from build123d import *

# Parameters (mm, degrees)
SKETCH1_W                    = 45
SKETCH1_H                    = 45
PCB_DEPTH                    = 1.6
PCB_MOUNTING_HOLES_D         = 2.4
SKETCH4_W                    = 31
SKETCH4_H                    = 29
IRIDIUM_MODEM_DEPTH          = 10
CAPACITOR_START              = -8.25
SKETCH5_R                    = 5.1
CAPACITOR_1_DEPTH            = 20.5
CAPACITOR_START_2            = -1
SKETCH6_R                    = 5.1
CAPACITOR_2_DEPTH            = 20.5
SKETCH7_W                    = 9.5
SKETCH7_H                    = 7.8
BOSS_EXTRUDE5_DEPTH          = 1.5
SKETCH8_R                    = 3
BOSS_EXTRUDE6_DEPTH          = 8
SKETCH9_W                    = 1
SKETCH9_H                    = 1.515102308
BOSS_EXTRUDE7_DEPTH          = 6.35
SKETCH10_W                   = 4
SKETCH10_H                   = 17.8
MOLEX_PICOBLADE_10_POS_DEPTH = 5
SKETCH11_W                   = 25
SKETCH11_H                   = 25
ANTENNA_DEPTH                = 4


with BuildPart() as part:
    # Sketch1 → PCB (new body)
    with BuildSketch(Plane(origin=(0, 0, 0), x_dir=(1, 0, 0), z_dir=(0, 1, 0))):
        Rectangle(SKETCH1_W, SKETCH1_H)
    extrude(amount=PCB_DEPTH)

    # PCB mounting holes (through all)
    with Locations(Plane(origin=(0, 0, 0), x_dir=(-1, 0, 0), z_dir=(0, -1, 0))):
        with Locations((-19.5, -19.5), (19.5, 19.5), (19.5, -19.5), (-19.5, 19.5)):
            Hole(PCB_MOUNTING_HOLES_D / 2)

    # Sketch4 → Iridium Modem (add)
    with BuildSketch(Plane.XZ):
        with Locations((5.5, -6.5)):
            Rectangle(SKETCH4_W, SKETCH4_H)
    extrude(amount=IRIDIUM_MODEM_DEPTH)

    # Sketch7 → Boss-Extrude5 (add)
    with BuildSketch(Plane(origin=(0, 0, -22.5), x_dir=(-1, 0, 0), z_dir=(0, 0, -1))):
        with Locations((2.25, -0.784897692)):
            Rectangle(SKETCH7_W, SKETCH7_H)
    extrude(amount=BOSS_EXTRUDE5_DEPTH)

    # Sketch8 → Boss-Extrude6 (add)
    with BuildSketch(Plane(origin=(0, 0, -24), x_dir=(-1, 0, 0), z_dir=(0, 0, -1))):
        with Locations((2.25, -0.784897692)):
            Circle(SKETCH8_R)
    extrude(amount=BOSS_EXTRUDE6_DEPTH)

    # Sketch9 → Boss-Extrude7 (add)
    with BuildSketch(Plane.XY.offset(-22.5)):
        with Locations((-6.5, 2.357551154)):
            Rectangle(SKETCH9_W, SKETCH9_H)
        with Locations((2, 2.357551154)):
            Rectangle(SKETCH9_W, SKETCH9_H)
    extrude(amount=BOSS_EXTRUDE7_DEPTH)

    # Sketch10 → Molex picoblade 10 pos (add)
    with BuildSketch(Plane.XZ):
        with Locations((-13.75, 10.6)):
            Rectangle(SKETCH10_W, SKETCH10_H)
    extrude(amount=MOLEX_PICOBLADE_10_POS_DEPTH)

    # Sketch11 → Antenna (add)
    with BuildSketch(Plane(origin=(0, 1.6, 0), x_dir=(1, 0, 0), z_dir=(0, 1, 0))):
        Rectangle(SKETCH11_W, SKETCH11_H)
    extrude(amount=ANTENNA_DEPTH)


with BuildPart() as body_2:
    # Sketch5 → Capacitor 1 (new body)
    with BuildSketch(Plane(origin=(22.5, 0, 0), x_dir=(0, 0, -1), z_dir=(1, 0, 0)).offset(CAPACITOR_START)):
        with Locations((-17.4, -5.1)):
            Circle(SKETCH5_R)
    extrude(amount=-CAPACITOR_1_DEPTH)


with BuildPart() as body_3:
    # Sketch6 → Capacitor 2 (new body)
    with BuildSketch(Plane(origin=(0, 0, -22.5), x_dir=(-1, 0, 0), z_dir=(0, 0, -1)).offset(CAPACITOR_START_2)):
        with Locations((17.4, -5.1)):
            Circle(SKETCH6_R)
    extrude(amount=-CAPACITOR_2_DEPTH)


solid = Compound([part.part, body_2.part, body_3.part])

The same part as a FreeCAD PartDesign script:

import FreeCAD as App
import Part
import Sketcher


def add_polygon(sketch, points):
    """Adds a closed chain of lines whose ends are joined by coincident constraints."""
    first, n = sketch.GeometryCount, len(points)
    for a, b in zip(points, points[1:] + points[:1]):
        sketch.addGeometry(Part.LineSegment(App.Vector(*a, 0), App.Vector(*b, 0)), False)
    for i in range(n):
        sketch.addConstraint(Sketcher.Constraint("Coincident", first + i, 2, first + (i + 1) % n, 1))

doc = App.newDocument("Part")
body = doc.addObject("PartDesign::Body", "Body")

sketch1 = body.newObject("Sketcher::SketchObject", "Sketch")
sketch1.AttachmentSupport = (doc.getObject("XZ_Plane"), [""])
sketch1.MapMode = "FlatFace"
add_polygon(sketch1, [(-22, -22), (-22, 22), (22, 22), (22, -22)])
sketch1.addConstraint(Sketcher.Constraint("Vertical", 0))
sketch1.addConstraint(Sketcher.Constraint("Horizontal", 1))
sketch1.addConstraint(Sketcher.Constraint("Vertical", 2))
sketch1.addConstraint(Sketcher.Constraint("Horizontal", 3))
sketch1.addConstraint(Sketcher.Constraint("Symmetric", 0, 2, 2, 2, -1, 1))
sketch1.addConstraint(Sketcher.Constraint("Equal", 3, 0))
sketch1.addConstraint(Sketcher.Constraint("DistanceX", 1, 1, 1, 2, 45.0))
pad1 = body.newObject("PartDesign::Pad", "Pad")
pad1.Profile = sketch1
pad1.Length = 1.6
pad1.Reversed = True

sketch2 = body.newObject("Sketcher::SketchObject", "Sketch001")
sketch2.AttachmentSupport = (doc.getObject("XZ_Plane"), [""])
sketch2.MapMode = "FlatFace"
sketch2.addGeometry(Part.Circle(App.Vector(19.5, 19.5, 0), App.Vector(0, 0, 1), 1.2), False)
sketch2.addGeometry(Part.Circle(App.Vector(-19.5, -19.5, 0), App.Vector(0, 0, 1), 1.2), False)
sketch2.addGeometry(Part.Circle(App.Vector(-19.5, 19.5, 0), App.Vector(0, 0, 1), 1.2), False)
sketch2.addGeometry(Part.Circle(App.Vector(19.5, -19.5, 0), App.Vector(0, 0, 1), 1.2), False)
sketch2.addConstraint(Sketcher.Constraint("Equal", 0, 1))
sketch2.addConstraint(Sketcher.Constraint("Equal", 1, 2))
sketch2.addConstraint(Sketcher.Constraint("Equal", 2, 3))
sketch2.addConstraint(Sketcher.Constraint("Symmetric", 0, 3, 1, 3, -1, 1))
sketch2.addConstraint(Sketcher.Constraint("Symmetric", 2, 3, 3, 3, -1, 1))
sketch2.addConstraint(Sketcher.Constraint("Symmetric", 0, 3, 2, 3, -2))
sketch2.addConstraint(Sketcher.Constraint("Diameter", 0, 2.4))
sketch2.addConstraint(Sketcher.Constraint("DistanceX", 1, 3, 0, 3, 39.0))
sketch2.addConstraint(Sketcher.Constraint("DistanceY", 1, 3, 0, 3, 39.0))
doc.recompute()
hole = body.newObject("PartDesign::Hole", "Hole")
hole.Profile = sketch2
hole.ThreadType = "None"
hole.Diameter = 2.4
hole.DepthType = "ThroughAll"

sketch3 = body.newObject("Sketcher::SketchObject", "Sketch002")
sketch3.AttachmentSupport = (doc.getObject("XZ_Plane"), [""])
sketch3.MapMode = "FlatFace"
add_polygon(sketch3, [(-10, 8), (-10, -21), (21, -21), (21, 8)])
sketch3.addConstraint(Sketcher.Constraint("Vertical", 0))
sketch3.addConstraint(Sketcher.Constraint("Horizontal", 1))
sketch3.addConstraint(Sketcher.Constraint("Vertical", 2))
sketch3.addConstraint(Sketcher.Constraint("Horizontal", 3))
sketch3.addConstraint(Sketcher.Constraint("DistanceX", 1, 1, 1, 2, 31.0))
sketch3.addConstraint(Sketcher.Constraint("DistanceY", 0, 2, 0, 1, 29.0))
sketch3.addConstraint(Sketcher.Constraint("DistanceX", 0, 2, -1, 1, 10.0))
sketch3.addConstraint(Sketcher.Constraint("DistanceY", 0, 2, -1, 1, 21.0))
pad2 = body.newObject("PartDesign::Pad", "Pad001")
pad2.Profile = sketch3
pad2.Length = 10

sketch4 = body.newObject("Sketcher::SketchObject", "Sketch003")
sketch4.AttachmentSupport = (doc.getObject("XY_Plane"), [""])
sketch4.MapMode = "FlatFace"
sketch4.AttachmentOffset = App.Placement(App.Vector(0, 0, -22.5), App.Rotation())
add_polygon(sketch4, [(2, 3), (2, -5), (-7, -5), (-7, 3)])
sketch4.addConstraint(Sketcher.Constraint("Vertical", 0))
sketch4.addConstraint(Sketcher.Constraint("Horizontal", 1))
sketch4.addConstraint(Sketcher.Constraint("Vertical", 2))
sketch4.addConstraint(Sketcher.Constraint("Horizontal", 3))
sketch4.addConstraint(Sketcher.Constraint("DistanceX", 1, 2, 1, 1, 9.5))
sketch4.addConstraint(Sketcher.Constraint("DistanceY", 0, 2, 0, 1, 7.8))
sketch4.addConstraint(Sketcher.Constraint("DistanceX", 1, 2, -1, 1, 7.0))
sketch4.addConstraint(Sketcher.Constraint("DistanceY", 0, 2, -1, 1, 4.684898))
pad3 = body.newObject("PartDesign::Pad", "Pad002")
pad3.Profile = sketch4
pad3.Length = 1.5
pad3.Reversed = True

sketch5 = body.newObject("Sketcher::SketchObject", "Sketch004")
sketch5.AttachmentSupport = (doc.getObject("XY_Plane"), [""])
sketch5.MapMode = "FlatFace"
sketch5.AttachmentOffset = App.Placement(App.Vector(0, 0, -24), App.Rotation())
sketch5.addGeometry(Part.Circle(App.Vector(-2.2, -0.8, 0), App.Vector(0, 0, 1), 3), False)
sketch5.addConstraint(Sketcher.Constraint("Diameter", 0, 6.0))
sketch5.addConstraint(Sketcher.Constraint("DistanceX", 0, 3, -1, 1, 2.25))
sketch5.addConstraint(Sketcher.Constraint("DistanceY", 0, 3, -1, 1, 0.784898))
pad4 = body.newObject("PartDesign::Pad", "Pad003")
pad4.Profile = sketch5
pad4.Length = 8
pad4.Reversed = True

sketch6 = body.newObject("Sketcher::SketchObject", "Sketch005")
sketch6.AttachmentSupport = (doc.getObject("XY_Plane"), [""])
sketch6.MapMode = "FlatFace"
sketch6.AttachmentOffset = App.Placement(App.Vector(0, 0, -22.5), App.Rotation())
add_polygon(sketch6, [(-7, 3.1), (-7, 1.6), (-6, 1.6), (-6, 3.1)])
add_polygon(sketch6, [(1.5, 3.1), (1.5, 1.6), (2.5, 1.6), (2.5, 3.1)])
sketch6.addConstraint(Sketcher.Constraint("Vertical", 0))
sketch6.addConstraint(Sketcher.Constraint("Horizontal", 1))
sketch6.addConstraint(Sketcher.Constraint("Vertical", 2))
sketch6.addConstraint(Sketcher.Constraint("Horizontal", 3))
sketch6.addConstraint(Sketcher.Constraint("Vertical", 4))
sketch6.addConstraint(Sketcher.Constraint("Horizontal", 5))
sketch6.addConstraint(Sketcher.Constraint("Vertical", 6))
sketch6.addConstraint(Sketcher.Constraint("Horizontal", 7))
sketch6.addConstraint(Sketcher.Constraint("Horizontal", 1, 2, 4, 2))
sketch6.addConstraint(Sketcher.Constraint("Horizontal", 3, 2, 6, 2))
sketch6.addConstraint(Sketcher.Constraint("Equal", 3, 5))
sketch6.addConstraint(Sketcher.Constraint("DistanceX", 1, 1, 1, 2, 1.0))
sketch6.addConstraint(Sketcher.Constraint("DistanceX", 0, 2, -1, 1, 7.0))
sketch6.addConstraint(Sketcher.Constraint("DistanceY", -1, 1, 0, 2, 1.6))
sketch6.addConstraint(Sketcher.Constraint("DistanceX", -1, 1, 4, 2, 1.5))
sketch6.addConstraint(Sketcher.Constraint("DistanceY", 0, 2, 0, 1, 1.515102))
pad5 = body.newObject("PartDesign::Pad", "Pad004")
pad5.Profile = sketch6
pad5.Length = 6.35

sketch7 = body.newObject("Sketcher::SketchObject", "Sketch006")
sketch7.AttachmentSupport = (doc.getObject("XZ_Plane"), [""])
sketch7.MapMode = "FlatFace"
add_polygon(sketch7, [(-15.8, 19.5), (-15.8, 1.7), (-11.8, 1.7), (-11.8, 19.5)])
sketch7.addConstraint(Sketcher.Constraint("Vertical", 0))
sketch7.addConstraint(Sketcher.Constraint("Horizontal", 1))
sketch7.addConstraint(Sketcher.Constraint("Vertical", 2))
sketch7.addConstraint(Sketcher.Constraint("Horizontal", 3))
sketch7.addConstraint(Sketcher.Constraint("DistanceX", 1, 1, 1, 2, 4.0))
sketch7.addConstraint(Sketcher.Constraint("DistanceY", 0, 2, 0, 1, 17.8))
sketch7.addConstraint(Sketcher.Constraint("DistanceY", -1, 1, 0, 2, 1.7))
sketch7.addConstraint(Sketcher.Constraint("DistanceX", 0, 2, -1, 1, 15.75))
pad6 = body.newObject("PartDesign::Pad", "Pad005")
pad6.Profile = sketch7
pad6.Length = 5

sketch8 = body.newObject("Sketcher::SketchObject", "Sketch007")
sketch8.AttachmentSupport = (doc.getObject("XZ_Plane"), [""])
sketch8.MapMode = "FlatFace"
sketch8.AttachmentOffset = App.Placement(App.Vector(0, 0, -1.6), App.Rotation())
add_polygon(sketch8, [(-12, -12), (-12, 12), (12, 12), (12, -12)])
sketch8.addConstraint(Sketcher.Constraint("Vertical", 0))
sketch8.addConstraint(Sketcher.Constraint("Horizontal", 1))
sketch8.addConstraint(Sketcher.Constraint("Vertical", 2))
sketch8.addConstraint(Sketcher.Constraint("Horizontal", 3))
sketch8.addConstraint(Sketcher.Constraint("Symmetric", 0, 2, 2, 2, -1, 1))
sketch8.addConstraint(Sketcher.Constraint("Equal", 3, 0))
sketch8.addConstraint(Sketcher.Constraint("DistanceX", 1, 1, 1, 2, 25.0))
pad7 = body.newObject("PartDesign::Pad", "Pad006")
pad7.Profile = sketch8
pad7.Length = 4
pad7.Reversed = True
body2 = doc.addObject("PartDesign::Body", "Body001")

sketch9 = body2.newObject("Sketcher::SketchObject", "Sketch008")
sketch9.AttachmentSupport = (doc.getObject("YZ_Plane001"), [""])
sketch9.MapMode = "FlatFace"
sketch9.AttachmentOffset = App.Placement(App.Vector(0, 0, 14.25), App.Rotation())
sketch9.addGeometry(Part.Circle(App.Vector(-5, 17, 0), App.Vector(0, 0, 1), 5), False)
sketch9.addConstraint(Sketcher.Constraint("Diameter", 0, 10.2))
sketch9.addConstraint(Sketcher.Constraint("DistanceX", 0, 3, -1, 1, 5.1))
sketch9.addConstraint(Sketcher.Constraint("DistanceY", -1, 1, 0, 3, 17.4))
pad8 = body2.newObject("PartDesign::Pad", "Pad007")
pad8.Profile = sketch9
pad8.Length = 20.5
pad8.Reversed = True
body3 = doc.addObject("PartDesign::Body", "Body002")

sketch10 = body3.newObject("Sketcher::SketchObject", "Sketch009")
sketch10.AttachmentSupport = (doc.getObject("XY_Plane002"), [""])
sketch10.MapMode = "FlatFace"
sketch10.AttachmentOffset = App.Placement(App.Vector(0, 0, -21.5), App.Rotation())
sketch10.addGeometry(Part.Circle(App.Vector(-17, -5, 0), App.Vector(0, 0, 1), 5), False)
sketch10.addConstraint(Sketcher.Constraint("Diameter", 0, 10.2))
sketch10.addConstraint(Sketcher.Constraint("DistanceX", 0, 3, -1, 1, 17.4))
sketch10.addConstraint(Sketcher.Constraint("DistanceY", 0, 3, -1, 1, 5.1))
pad9 = body3.newObject("PartDesign::Pad", "Pad008")
pad9.Profile = sketch10
pad9.Length = 20.5

doc.recompute()
